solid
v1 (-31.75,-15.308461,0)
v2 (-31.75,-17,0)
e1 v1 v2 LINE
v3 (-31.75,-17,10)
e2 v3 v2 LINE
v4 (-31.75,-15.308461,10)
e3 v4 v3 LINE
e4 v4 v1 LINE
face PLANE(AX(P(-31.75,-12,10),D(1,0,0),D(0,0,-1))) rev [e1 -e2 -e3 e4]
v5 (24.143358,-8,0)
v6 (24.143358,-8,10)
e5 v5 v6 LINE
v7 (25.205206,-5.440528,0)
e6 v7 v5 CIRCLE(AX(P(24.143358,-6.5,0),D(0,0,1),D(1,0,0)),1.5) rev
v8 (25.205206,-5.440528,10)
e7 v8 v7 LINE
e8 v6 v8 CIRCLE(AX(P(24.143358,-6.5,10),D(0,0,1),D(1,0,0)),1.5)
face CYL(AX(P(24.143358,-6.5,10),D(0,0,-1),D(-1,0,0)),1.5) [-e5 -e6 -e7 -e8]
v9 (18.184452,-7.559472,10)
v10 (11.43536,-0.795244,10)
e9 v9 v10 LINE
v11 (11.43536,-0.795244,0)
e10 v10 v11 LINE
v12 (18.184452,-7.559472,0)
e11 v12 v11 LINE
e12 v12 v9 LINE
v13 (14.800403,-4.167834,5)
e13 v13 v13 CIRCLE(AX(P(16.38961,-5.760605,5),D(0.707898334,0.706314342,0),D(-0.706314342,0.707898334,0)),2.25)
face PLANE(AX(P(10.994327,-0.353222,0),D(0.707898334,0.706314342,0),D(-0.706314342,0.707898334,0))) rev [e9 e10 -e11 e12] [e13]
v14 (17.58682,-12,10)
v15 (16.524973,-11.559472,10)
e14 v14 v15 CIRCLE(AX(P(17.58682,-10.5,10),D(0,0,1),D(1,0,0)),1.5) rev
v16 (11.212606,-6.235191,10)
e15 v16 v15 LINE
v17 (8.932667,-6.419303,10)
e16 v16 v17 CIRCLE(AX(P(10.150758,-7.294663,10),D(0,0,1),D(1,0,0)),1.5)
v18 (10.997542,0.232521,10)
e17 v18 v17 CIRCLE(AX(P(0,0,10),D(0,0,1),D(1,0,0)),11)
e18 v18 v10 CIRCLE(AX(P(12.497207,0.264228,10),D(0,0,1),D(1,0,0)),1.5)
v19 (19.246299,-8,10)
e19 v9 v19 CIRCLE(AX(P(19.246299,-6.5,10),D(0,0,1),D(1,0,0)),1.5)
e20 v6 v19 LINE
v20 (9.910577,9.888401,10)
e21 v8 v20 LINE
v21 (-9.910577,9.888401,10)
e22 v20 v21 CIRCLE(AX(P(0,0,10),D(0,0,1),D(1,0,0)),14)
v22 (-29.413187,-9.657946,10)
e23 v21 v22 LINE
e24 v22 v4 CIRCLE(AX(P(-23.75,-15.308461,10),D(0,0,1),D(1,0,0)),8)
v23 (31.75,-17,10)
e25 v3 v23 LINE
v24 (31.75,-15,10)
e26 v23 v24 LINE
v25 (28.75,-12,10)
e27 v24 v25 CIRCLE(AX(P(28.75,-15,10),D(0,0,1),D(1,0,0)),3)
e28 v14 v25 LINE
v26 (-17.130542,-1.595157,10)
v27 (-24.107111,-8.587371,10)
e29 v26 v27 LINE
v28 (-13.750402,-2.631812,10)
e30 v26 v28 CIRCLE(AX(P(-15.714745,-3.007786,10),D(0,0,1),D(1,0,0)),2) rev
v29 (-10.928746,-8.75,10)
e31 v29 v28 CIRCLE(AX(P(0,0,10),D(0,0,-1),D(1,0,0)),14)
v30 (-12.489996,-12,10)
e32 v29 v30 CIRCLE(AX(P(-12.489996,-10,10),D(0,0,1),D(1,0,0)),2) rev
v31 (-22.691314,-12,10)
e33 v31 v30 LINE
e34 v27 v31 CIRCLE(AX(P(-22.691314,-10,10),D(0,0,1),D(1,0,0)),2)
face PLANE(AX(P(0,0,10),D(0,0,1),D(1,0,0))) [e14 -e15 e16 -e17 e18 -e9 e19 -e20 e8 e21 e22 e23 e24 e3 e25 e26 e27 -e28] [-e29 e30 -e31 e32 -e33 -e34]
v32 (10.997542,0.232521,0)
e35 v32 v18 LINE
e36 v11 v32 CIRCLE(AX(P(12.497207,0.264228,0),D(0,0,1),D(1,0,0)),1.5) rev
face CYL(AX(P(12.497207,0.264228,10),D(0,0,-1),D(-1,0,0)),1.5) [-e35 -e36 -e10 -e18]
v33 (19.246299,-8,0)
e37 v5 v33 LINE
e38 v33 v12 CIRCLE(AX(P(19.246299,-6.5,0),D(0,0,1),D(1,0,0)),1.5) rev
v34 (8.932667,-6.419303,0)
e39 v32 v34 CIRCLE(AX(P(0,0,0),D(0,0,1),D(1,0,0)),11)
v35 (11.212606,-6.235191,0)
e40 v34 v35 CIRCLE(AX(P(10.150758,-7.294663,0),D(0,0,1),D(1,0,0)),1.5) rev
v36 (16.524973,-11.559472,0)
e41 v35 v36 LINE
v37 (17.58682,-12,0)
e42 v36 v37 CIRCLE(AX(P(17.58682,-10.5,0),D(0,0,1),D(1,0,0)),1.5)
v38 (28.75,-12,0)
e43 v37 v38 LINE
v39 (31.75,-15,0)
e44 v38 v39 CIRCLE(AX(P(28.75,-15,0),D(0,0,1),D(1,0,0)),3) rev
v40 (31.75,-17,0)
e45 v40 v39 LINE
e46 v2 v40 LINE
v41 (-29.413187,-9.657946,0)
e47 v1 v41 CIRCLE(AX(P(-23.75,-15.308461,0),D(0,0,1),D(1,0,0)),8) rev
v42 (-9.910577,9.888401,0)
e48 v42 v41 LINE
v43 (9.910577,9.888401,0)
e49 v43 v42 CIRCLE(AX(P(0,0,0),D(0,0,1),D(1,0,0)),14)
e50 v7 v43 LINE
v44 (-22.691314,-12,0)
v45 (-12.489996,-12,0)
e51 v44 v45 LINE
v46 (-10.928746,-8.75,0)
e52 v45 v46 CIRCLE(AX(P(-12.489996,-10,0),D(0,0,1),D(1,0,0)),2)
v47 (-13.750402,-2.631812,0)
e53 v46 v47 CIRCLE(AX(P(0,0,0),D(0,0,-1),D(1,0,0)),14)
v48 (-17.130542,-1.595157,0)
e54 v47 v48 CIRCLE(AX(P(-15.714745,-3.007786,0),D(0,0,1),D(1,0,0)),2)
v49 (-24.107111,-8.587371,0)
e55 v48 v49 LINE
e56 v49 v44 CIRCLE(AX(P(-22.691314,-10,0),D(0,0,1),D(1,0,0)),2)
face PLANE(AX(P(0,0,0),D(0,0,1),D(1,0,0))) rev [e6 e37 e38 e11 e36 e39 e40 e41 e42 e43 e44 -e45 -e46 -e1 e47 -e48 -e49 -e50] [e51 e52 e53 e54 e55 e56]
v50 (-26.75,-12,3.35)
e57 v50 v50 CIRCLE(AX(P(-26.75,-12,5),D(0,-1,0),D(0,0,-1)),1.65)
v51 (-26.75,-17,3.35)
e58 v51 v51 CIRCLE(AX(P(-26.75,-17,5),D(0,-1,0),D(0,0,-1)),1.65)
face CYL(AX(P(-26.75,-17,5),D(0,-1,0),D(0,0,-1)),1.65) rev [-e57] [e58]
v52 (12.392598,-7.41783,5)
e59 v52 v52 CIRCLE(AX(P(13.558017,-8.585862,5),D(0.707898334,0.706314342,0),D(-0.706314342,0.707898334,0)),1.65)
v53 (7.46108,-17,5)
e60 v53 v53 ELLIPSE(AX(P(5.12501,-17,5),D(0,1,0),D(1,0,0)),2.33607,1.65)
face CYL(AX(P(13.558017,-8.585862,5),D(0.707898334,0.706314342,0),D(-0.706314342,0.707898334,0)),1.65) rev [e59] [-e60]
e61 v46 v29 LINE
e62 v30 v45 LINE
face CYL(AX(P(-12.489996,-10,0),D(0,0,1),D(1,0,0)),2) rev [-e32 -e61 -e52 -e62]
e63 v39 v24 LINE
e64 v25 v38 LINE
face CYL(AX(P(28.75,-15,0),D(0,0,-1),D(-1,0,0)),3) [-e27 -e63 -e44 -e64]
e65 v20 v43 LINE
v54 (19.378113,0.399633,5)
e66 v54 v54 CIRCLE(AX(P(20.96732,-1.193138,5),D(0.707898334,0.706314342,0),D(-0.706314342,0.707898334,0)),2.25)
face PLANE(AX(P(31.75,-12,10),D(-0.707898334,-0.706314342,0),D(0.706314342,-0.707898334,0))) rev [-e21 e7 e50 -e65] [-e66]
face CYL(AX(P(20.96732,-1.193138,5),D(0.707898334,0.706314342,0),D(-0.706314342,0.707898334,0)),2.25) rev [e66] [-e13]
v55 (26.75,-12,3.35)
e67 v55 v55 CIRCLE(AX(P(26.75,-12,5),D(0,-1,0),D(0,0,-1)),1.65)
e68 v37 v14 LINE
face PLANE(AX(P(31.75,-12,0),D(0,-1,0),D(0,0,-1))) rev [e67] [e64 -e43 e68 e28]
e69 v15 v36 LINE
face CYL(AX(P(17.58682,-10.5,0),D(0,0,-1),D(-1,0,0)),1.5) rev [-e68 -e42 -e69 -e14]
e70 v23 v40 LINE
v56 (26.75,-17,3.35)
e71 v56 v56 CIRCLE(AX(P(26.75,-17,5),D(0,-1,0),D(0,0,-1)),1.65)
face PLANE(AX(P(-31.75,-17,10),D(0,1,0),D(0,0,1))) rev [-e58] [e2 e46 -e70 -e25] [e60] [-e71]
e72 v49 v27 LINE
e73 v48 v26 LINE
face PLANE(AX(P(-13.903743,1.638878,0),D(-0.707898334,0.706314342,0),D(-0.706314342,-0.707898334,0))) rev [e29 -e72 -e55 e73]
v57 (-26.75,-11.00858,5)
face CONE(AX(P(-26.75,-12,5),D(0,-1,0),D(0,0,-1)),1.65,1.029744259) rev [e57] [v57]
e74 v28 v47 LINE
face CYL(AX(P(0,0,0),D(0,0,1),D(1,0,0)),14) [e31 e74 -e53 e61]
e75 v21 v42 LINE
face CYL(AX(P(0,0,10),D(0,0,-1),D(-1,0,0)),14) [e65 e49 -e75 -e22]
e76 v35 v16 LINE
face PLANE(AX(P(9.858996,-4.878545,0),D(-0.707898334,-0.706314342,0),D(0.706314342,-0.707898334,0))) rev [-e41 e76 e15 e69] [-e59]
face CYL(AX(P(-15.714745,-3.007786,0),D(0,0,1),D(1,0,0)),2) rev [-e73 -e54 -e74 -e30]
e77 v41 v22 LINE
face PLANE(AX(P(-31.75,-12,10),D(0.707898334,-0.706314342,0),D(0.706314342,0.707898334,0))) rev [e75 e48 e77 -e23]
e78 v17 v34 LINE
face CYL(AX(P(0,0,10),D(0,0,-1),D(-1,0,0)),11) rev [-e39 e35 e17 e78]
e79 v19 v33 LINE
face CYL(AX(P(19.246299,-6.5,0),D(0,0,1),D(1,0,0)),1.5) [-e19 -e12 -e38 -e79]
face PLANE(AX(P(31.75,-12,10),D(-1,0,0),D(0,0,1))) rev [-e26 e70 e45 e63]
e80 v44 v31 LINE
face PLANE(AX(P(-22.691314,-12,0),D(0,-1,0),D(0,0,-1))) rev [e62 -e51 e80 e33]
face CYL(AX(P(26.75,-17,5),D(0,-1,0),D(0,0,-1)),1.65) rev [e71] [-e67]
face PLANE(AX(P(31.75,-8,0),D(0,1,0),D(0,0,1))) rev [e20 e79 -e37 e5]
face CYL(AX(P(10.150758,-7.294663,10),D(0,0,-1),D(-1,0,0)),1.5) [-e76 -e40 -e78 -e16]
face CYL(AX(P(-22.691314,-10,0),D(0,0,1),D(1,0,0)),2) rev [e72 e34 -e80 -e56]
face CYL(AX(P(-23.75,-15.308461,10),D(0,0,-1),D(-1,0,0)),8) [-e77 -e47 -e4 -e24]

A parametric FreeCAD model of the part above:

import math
import FreeCAD as App
import Part
import Sketcher

V = App.Vector


def edges_at(feature, points):
    """Names of the edges that pass closest to the given points."""
    edges = feature.Shape.Edges
    near = lambda p: min(range(len(edges)), key=lambda i: edges[i].distToShape(Part.Vertex(*p))[0])
    return sorted({f"Edge{near(p) + 1}" for p in points})

doc = App.newDocument("Part")
body = doc.addObject("PartDesign::Body", "Body")

sketch1 = body.newObject("Sketcher::SketchObject", "Sketch")
sketch1.AttachmentSupport = (doc.getObject("XY_Plane"), [""])
sketch1.MapMode = "FlatFace"
sketch1.addGeometry([
    Part.LineSegment(V(-10, 10, 0), V(-32, -12, 0)),
    Part.LineSegment(V(-32, -12, 0), V(-32, -17, 0)),
    Part.LineSegment(V(-32, -17, 0), V(32, -17, 0)),
    Part.LineSegment(V(32, -17, 0), V(32, -12, 0)),
    Part.LineSegment(V(32, -12, 0), V(10, 10, 0)),
    Part.ArcOfCircle(Part.Circle(V(0, 0, 0), V(0, 0, 1), 14), math.radians(45), math.radians(135)),
    Part.Circle(V(0, 0, 0), V(0, 0, 1), 11),
], False)
sketch1.addConstraint([
    Sketcher.Constraint("Coincident", 0, 2, 1, 1),
    Sketcher.Constraint("Coincident", 1, 2, 2, 1),
    Sketcher.Constraint("Coincident", 2, 2, 3, 1),
    Sketcher.Constraint("Coincident", 3, 2, 4, 1),
    Sketcher.Constraint("Tangent", 4, 2, 5, 1),
    Sketcher.Constraint("Tangent", 5, 2, 0, 1),
    Sketcher.Constraint("Vertical", 1),
    Sketcher.Constraint("Horizontal", 2),
    Sketcher.Constraint("Vertical", 3),
    Sketcher.Constraint("Coincident", 5, 3, -1, 1),
    Sketcher.Constraint("Coincident", 6, 3, -1, 1),
    Sketcher.Constraint("Symmetric", 0, 2, 3, 2, -2),
    Sketcher.Constraint("Diameter", 6, 22.0),
    Sketcher.Constraint("Radius", 5, 14.0),
    Sketcher.Constraint("DistanceY", 1, 2, 1, 1, 5.0),
    Sketcher.Constraint("DistanceX", 2, 1, 2, 2, 63.5),
    Sketcher.Constraint("DistanceY", 0, 2, -1, 1, 12.0),
])
pad1 = body.newObject("PartDesign::Pad", "Pad")
pad1.Profile = sketch1
pad1.Length = 10

sketch2 = body.newObject("Sketcher::SketchObject", "Sketch001")
sketch2.AttachmentSupport = (doc.getObject("XY_Plane"), [""])
sketch2.MapMode = "FlatFace"
sketch2.AttachmentOffset = App.Placement(V(0, 0, 10), App.Rotation())
sketch2.addGeometry([
    Part.LineSegment(V(18.6, -8, 0), V(11, -0.4, 0)),
    Part.LineSegment(V(11, -0.4, 0), V(9.9, -4.9, 0)),
    Part.LineSegment(V(9.9, -4.9, 0), V(17, -12, 0)),
    Part.LineSegment(V(17, -12, 0), V(31.8, -12, 0)),
    Part.LineSegment(V(31.8, -12, 0), V(31.8, -8, 0)),
    Part.LineSegment(V(31.8, -8, 0), V(18.6, -8, 0)),
], False)
sketch2.addConstraint([
    Sketcher.Constraint("Coincident", 0, 2, 1, 1),
    Sketcher.Constraint("Coincident", 1, 2, 2, 1),
    Sketcher.Constraint("Coincident", 2, 2, 3, 1),
    Sketcher.Constraint("Coincident", 3, 2, 4, 1),
    Sketcher.Constraint("Coincident", 4, 2, 5, 1),
    Sketcher.Constraint("Coincident", 5, 2, 0, 1),
    Sketcher.Constraint("Horizontal", 3),
    Sketcher.Constraint("Vertical", 4),
    Sketcher.Constraint("Horizontal", 5),
    Sketcher.Constraint("Parallel", 0, 2),
    Sketcher.Constraint("DistanceY", 4, 1, 4, 2, 4.0),
    Sketcher.Constraint("DistanceY", 2, 2, -1, 1, 12.0),
    Sketcher.Constraint("DistanceX", -1, 1, 3, 2, 31.75),
    Sketcher.Constraint("DistanceX", 1, 2, 5, 2, 8.764999),
    Sketcher.Constraint("Distance", 1, 4.665568),
    Sketcher.Constraint("DistanceX", 3, 1, 3, 2, 14.785485),
    Sketcher.Constraint("DistanceX", 5, 2, 5, 1, 13.126005),
    Sketcher.Constraint("DistanceX", 1, 2, 0, 2, 1.135332),
])
pocket1 = body.newObject("PartDesign::Pocket", "Pocket")
pocket1.Profile = sketch2
pocket1.Type = "ThroughAll"
doc.recompute()

fillet = body.newObject("PartDesign::Fillet", "Fillet")
fillet.Base = (pocket1, edges_at(pocket1, [
    (27.759, -8, 5),
    (18.624, -8, 5),
    (9.859, -4.879, 5),
    (10.994, -0.353, 5),
    (16.965, -12, 5),
]))
fillet.Radius = 1.5

sketch3 = body.newObject("Sketcher::SketchObject", "Sketch002")
sketch3.AttachmentSupport = (doc.getObject("XZ_Plane"), [""])
sketch3.MapMode = "FlatFace"
sketch3.AttachmentOffset = App.Placement(V(0, 0, 17), App.Rotation())
sketch3.addGeometry([
    Part.Circle(V(-26.8, 5, 0), V(0, 0, 1), 1.6),
    Part.Circle(V(26.8, 5, 0), V(0, 0, 1), 1.6),
], False)
sketch3.addConstraint([
    Sketcher.Constraint("Equal", 0, 1),
    Sketcher.Constraint("Symmetric", 0, 3, 1, 3, -2),
    Sketcher.Constraint("Diameter", 0, 3.3),
    Sketcher.Constraint("DistanceY", -1, 1, 0, 3, 5.0),
    Sketcher.Constraint("DistanceX", 0, 3, 1, 3, 53.5),
])
doc.recompute()
hole = body.newObject("PartDesign::Hole", "Hole")
hole.Profile = sketch3
hole.ThreadType = "None"
hole.Diameter = 3.3
hole.DepthType = "Dimension"
hole.Depth = 5
hole.DrillPoint = "Angled"
hole.DrillPointAngle = 118

sketch4 = body.newObject("Sketcher::SketchObject", "Sketch003")
sketch4.Placement = App.Placement(V(9.910577, 9.888401, 0), App.Rotation(V(0, 0, -1), V(-0.706314342, 0.707898334, 0), V(0.707898334, 0.706314342, 0), "ZXY"))
sketch4.addGeometry(Part.Circle(V(-5, -15.7, 0), V(0, 0, 1), 2.2), False)
sketch4.addConstraint([
    Sketcher.Constraint("Diameter", 0, 4.5),
    Sketcher.Constraint("DistanceX", 0, 3, -1, 1, 5.0),
    Sketcher.Constraint("DistanceY", 0, 3, -1, 1, 15.65414),
])
doc.recompute()
hole2 = body.newObject("PartDesign::Hole", "Hole001")
hole2.Profile = sketch4
hole2.ThreadType = "None"
hole2.Diameter = 4.5
hole2.DepthType = "Dimension"
hole2.Depth = 6.46662
hole2.DrillPoint = "Flat"

sketch5 = body.newObject("Sketcher::SketchObject", "Sketch004")
sketch5.Placement = App.Placement(V(2.501274, 2.495677, 0), App.Rotation(V(0, 0, -1), V(-0.706314342, 0.707898334, 0), V(0.707898334, 0.706314342, 0), "ZXY"))
sketch5.addGeometry(Part.Circle(V(-5, -15.7, 0), V(0, 0, 1), 1.6), False)
sketch5.addConstraint([
    Sketcher.Constraint("Diameter", 0, 3.3),
    Sketcher.Constraint("DistanceX", 0, 3, -1, 1, 5.0),
    Sketcher.Constraint("DistanceY", 0, 3, -1, 1, 15.65414),
])
doc.recompute()
hole3 = body.newObject("PartDesign::Hole", "Hole002")
hole3.Profile = sketch5
hole3.ThreadType = "None"
hole3.Diameter = 3.3
hole3.DepthType = "ThroughAll"
doc.recompute()

fillet2 = body.newObject("PartDesign::Fillet", "Fillet001")
fillet2.Base = (hole3, edges_at(hole3, [(31.75, -12, 5)]))
fillet2.Radius = 3

sketch6 = body.newObject("Sketcher::SketchObject", "Sketch005")
sketch6.AttachmentSupport = (doc.getObject("XY_Plane"), [""])
sketch6.MapMode = "FlatFace"
sketch6.AttachmentOffset = App.Placement(V(0, 0, 10), App.Rotation())
sketch6.addGeometry([
    Part.LineSegment(V(-13.9, 1.6, 0), V(-24.1, -8.6, 0)),
    Part.ArcOfCircle(Part.Circle(V(-22.7, -10, 0), V(0, 0, 1), 2), math.radians(135), math.radians(270)),
    Part.LineSegment(V(-22.7, -12, 0), V(-7.2, -12, 0)),
    Part.ArcOfCircle(Part.Circle(V(0, 0, 0), V(0, 0, 1), 14), math.radians(173), math.radians(239)),
], False)
sketch6.addConstraint([
    Sketcher.Constraint("Tangent", 0, 2, 1, 1),
    Sketcher.Constraint("Tangent", 1, 2, 2, 1),
    Sketcher.Constraint("Coincident", 2, 2, 3, 2),
    Sketcher.Constraint("Coincident", 3, 1, 0, 1),
    Sketcher.Constraint("Horizontal", 2),
    Sketcher.Constraint("Coincident", 3, 3, -1, 1),
    Sketcher.Constraint("Radius", 1, 2.0),
    Sketcher.Constraint("Radius", 3, 14.0),
    Sketcher.Constraint("DistanceY", 1, 3, -1, 1, 10.0),
    Sketcher.Constraint("DistanceX", 2, 1, 2, 2, 15.480212),
    Sketcher.Constraint("Distance", 0, 14.44593),
])
pocket2 = body.newObject("PartDesign::Pocket", "Pocket001")
pocket2.Profile = sketch6
pocket2.Type = "ThroughAll"
doc.recompute()

fillet3 = body.newObject("PartDesign::Fillet", "Fillet002")
fillet3.Base = (pocket2, edges_at(pocket2, [(-13.904, 1.639, 5), (-7.211, -12, 5)]))
fillet3.Radius = 2
doc.recompute()

fillet4 = body.newObject("PartDesign::Fillet", "Fillet003")
fillet4.Base = (fillet3, edges_at(fillet3, [(-31.75, -12, 5)]))
fillet4.Radius = 8

doc.recompute()
